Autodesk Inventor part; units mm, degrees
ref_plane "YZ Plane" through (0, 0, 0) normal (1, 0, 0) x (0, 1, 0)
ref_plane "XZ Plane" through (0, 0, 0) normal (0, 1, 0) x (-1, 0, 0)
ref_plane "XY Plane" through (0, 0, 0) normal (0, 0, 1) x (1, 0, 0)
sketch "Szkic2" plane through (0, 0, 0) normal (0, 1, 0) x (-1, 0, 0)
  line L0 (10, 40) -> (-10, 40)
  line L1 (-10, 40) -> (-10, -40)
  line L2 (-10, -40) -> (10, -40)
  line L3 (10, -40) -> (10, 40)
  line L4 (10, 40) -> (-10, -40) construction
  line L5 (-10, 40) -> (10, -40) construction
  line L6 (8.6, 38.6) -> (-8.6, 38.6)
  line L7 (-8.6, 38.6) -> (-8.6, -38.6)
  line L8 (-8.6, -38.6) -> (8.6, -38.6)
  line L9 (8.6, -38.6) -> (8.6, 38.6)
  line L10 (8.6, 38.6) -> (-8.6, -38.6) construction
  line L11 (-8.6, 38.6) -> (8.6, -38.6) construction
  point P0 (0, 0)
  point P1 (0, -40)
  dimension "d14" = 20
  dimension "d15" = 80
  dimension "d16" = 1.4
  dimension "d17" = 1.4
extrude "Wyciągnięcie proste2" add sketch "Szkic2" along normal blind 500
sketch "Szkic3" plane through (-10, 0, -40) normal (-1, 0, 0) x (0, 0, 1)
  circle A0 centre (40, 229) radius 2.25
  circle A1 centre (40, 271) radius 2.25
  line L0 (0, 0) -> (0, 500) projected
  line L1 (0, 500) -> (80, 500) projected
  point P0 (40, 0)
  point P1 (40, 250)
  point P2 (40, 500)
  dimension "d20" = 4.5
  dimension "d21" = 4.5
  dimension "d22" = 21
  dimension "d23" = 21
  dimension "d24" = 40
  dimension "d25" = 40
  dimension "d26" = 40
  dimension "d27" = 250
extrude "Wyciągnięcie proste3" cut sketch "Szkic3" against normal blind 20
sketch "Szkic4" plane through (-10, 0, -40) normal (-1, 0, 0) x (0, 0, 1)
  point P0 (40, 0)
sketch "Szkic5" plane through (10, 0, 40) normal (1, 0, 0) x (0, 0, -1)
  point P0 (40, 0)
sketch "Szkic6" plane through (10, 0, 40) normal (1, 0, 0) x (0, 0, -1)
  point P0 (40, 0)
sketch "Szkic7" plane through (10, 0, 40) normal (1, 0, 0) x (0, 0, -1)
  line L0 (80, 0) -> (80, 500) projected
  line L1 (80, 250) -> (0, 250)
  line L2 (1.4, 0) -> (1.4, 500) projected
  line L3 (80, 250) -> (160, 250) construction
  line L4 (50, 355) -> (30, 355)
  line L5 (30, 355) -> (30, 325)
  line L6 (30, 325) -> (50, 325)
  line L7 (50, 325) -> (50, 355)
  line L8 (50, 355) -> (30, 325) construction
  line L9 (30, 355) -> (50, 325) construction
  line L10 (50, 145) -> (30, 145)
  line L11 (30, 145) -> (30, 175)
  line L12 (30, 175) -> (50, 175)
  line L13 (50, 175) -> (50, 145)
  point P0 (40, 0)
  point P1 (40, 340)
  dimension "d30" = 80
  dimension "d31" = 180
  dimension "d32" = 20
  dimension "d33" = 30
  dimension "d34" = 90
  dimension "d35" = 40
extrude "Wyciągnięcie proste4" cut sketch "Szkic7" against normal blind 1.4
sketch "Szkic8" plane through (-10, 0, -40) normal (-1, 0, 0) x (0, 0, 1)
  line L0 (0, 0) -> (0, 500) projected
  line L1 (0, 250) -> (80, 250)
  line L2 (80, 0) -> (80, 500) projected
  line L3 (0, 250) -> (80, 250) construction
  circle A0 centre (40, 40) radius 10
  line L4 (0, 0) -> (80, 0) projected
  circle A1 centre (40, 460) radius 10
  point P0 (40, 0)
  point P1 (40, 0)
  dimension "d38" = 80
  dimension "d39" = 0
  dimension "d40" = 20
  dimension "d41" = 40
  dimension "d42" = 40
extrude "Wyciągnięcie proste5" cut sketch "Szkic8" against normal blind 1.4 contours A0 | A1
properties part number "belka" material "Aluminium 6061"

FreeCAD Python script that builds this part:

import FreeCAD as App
import Part
import Sketcher

V = App.Vector

doc = App.newDocument("Part")
body = doc.addObject("PartDesign::Body", "Body")

sketch1 = body.newObject("Sketcher::SketchObject", "Sketch")
sketch1.AttachmentSupport = (doc.getObject("XZ_Plane"), [""])
sketch1.MapMode = "FlatFace"
sketch1.addGeometry([
    Part.LineSegment(V(-10, -40, 0), V(-10, 40, 0)),
    Part.LineSegment(V(-10, 40, 0), V(10, 40, 0)),
    Part.LineSegment(V(10, 40, 0), V(10, -40, 0)),
    Part.LineSegment(V(10, -40, 0), V(-10, -40, 0)),
    Part.LineSegment(V(8.6, 38.6, 0), V(-8.6, 38.6, 0)),
    Part.LineSegment(V(-8.6, 38.6, 0), V(-8.6, -38.6, 0)),
    Part.LineSegment(V(-8.6, -38.6, 0), V(8.6, -38.6, 0)),
    Part.LineSegment(V(8.6, -38.6, 0), V(8.6, 38.6, 0)),
], False)
sketch1.addConstraint([
    Sketcher.Constraint("Coincident", 0, 2, 1, 1),
    Sketcher.Constraint("Coincident", 1, 2, 2, 1),
    Sketcher.Constraint("Coincident", 2, 2, 3, 1),
    Sketcher.Constraint("Coincident", 3, 2, 0, 1),
    Sketcher.Constraint("Coincident", 4, 2, 5, 1),
    Sketcher.Constraint("Coincident", 5, 2, 6, 1),
    Sketcher.Constraint("Coincident", 6, 2, 7, 1),
    Sketcher.Constraint("Coincident", 7, 2, 4, 1),
    Sketcher.Constraint("Vertical", 0),
    Sketcher.Constraint("Horizontal", 1),
    Sketcher.Constraint("Vertical", 2),
    Sketcher.Constraint("Horizontal", 3),
    Sketcher.Constraint("Horizontal", 4),
    Sketcher.Constraint("Vertical", 5),
    Sketcher.Constraint("Horizontal", 6),
    Sketcher.Constraint("Vertical", 7),
    Sketcher.Constraint("Symmetric", 0, 2, 2, 2, -1, 1),
    Sketcher.Constraint("Symmetric", 4, 2, 6, 2, -1, 1),
    Sketcher.Constraint("DistanceX", 1, 1, 1, 2, 20.0),
    Sketcher.Constraint("DistanceY", 0, 1, 0, 2, 80.0),
    Sketcher.Constraint("DistanceX", 0, 2, 4, 2, 1.4),
    Sketcher.Constraint("DistanceY", 4, 2, 0, 2, 1.4),
])
pad1 = body.newObject("PartDesign::Pad", "Pad")
pad1.Profile = sketch1
pad1.Length = 500
pad1.Reversed = True

sketch2 = body.newObject("Sketcher::SketchObject", "Sketch001")
sketch2.AttachmentSupport = (doc.getObject("YZ_Plane"), [""])
sketch2.MapMode = "FlatFace"
sketch2.AttachmentOffset = App.Placement(V(0, 0, -10), App.Rotation())
sketch2.addGeometry([
    Part.Circle(V(229, 0, 0), V(0, 0, 1), 2.25),
    Part.Circle(V(271, 0, 0), V(0, 0, 1), 2.25),
], False)
sketch2.addConstraint([
    Sketcher.Constraint("Equal", 0, 1),
    Sketcher.Constraint("PointOnObject", 0, 3, -1),
    Sketcher.Constraint("PointOnObject", 1, 3, -1),
    Sketcher.Constraint("Diameter", 0, 4.5),
    Sketcher.Constraint("DistanceX", -1, 1, 0, 3, 229.0),
    Sketcher.Constraint("DistanceX", -1, 1, 1, 3, 271.0),
])
pocket1 = body.newObject("PartDesign::Pocket", "Pocket")
pocket1.Profile = sketch2
pocket1.Length = 20
pocket1.Reversed = True

sketch3 = body.newObject("Sketcher::SketchObject", "Sketch002")
sketch3.AttachmentSupport = (doc.getObject("YZ_Plane"), [""])
sketch3.MapMode = "FlatFace"
sketch3.AttachmentOffset = App.Placement(V(0, 0, 10), App.Rotation())
sketch3.addGeometry([
    Part.LineSegment(V(325, -10, 0), V(355, -10, 0)),
    Part.LineSegment(V(355, -10, 0), V(355, 10, 0)),
    Part.LineSegment(V(355, 10, 0), V(325, 10, 0)),
    Part.LineSegment(V(325, 10, 0), V(325, -10, 0)),
    Part.LineSegment(V(145, 10, 0), V(145, -10, 0)),
    Part.LineSegment(V(145, -10, 0), V(175, -10, 0)),
    Part.LineSegment(V(175, -10, 0), V(175, 10, 0)),
    Part.LineSegment(V(175, 10, 0), V(145, 10, 0)),
], False)
sketch3.addConstraint([
    Sketcher.Constraint("Coincident", 0, 2, 1, 1),
    Sketcher.Constraint("Coincident", 1, 2, 2, 1),
    Sketcher.Constraint("Coincident", 2, 2, 3, 1),
    Sketcher.Constraint("Coincident", 3, 2, 0, 1),
    Sketcher.Constraint("Coincident", 4, 2, 5, 1),
    Sketcher.Constraint("Coincident", 5, 2, 6, 1),
    Sketcher.Constraint("Coincident", 6, 2, 7, 1),
    Sketcher.Constraint("Coincident", 7, 2, 4, 1),
    Sketcher.Constraint("Horizontal", 0),
    Sketcher.Constraint("Vertical", 1),
    Sketcher.Constraint("Horizontal", 2),
    Sketcher.Constraint("Vertical", 3),
    Sketcher.Constraint("Vertical", 4),
    Sketcher.Constraint("Horizontal", 5),
    Sketcher.Constraint("Vertical", 6),
    Sketcher.Constraint("Horizontal", 7),
    Sketcher.Constraint("Horizontal", 3, 2, 4, 2),
    Sketcher.Constraint("Horizontal", 2, 2, 6, 2),
    Sketcher.Constraint("Equal", 2, 5),
    Sketcher.Constraint("DistanceX", 0, 1, 0, 2, 30.0),
    Sketcher.Constraint("DistanceY", 1, 1, 1, 2, 20.0),
    Sketcher.Constraint("DistanceX", 4, 2, 3, 2, 180.0),
    Sketcher.Constraint("DistanceX", -1, 1, 0, 2, 355.0),
    Sketcher.Constraint("DistanceY", 0, 2, -1, 1, 10.0),
])
pocket2 = body.newObject("PartDesign::Pocket", "Pocket001")
pocket2.Profile = sketch3
pocket2.Length = 1.4

sketch4 = body.newObject("Sketcher::SketchObject", "Sketch003")
sketch4.AttachmentSupport = (doc.getObject("YZ_Plane"), [""])
sketch4.MapMode = "FlatFace"
sketch4.AttachmentOffset = App.Placement(V(0, 0, -10), App.Rotation())
sketch4.addGeometry([
    Part.Circle(V(40, 0, 0), V(0, 0, 1), 10),
    Part.Circle(V(460, 0, 0), V(0, 0, 1), 10),
], False)
sketch4.addConstraint([
    Sketcher.Constraint("Equal", 0, 1),
    Sketcher.Constraint("PointOnObject", 0, 3, -1),
    Sketcher.Constraint("PointOnObject", 1, 3, -1),
    Sketcher.Constraint("Diameter", 0, 20.0),
    Sketcher.Constraint("DistanceX", -1, 1, 0, 3, 40.0),
    Sketcher.Constraint("DistanceX", -1, 1, 1, 3, 460.0),
])
pocket3 = body.newObject("PartDesign::Pocket", "Pocket002")
pocket3.Profile = sketch4
pocket3.Length = 1.4
pocket3.Reversed = True

doc.recompute()
